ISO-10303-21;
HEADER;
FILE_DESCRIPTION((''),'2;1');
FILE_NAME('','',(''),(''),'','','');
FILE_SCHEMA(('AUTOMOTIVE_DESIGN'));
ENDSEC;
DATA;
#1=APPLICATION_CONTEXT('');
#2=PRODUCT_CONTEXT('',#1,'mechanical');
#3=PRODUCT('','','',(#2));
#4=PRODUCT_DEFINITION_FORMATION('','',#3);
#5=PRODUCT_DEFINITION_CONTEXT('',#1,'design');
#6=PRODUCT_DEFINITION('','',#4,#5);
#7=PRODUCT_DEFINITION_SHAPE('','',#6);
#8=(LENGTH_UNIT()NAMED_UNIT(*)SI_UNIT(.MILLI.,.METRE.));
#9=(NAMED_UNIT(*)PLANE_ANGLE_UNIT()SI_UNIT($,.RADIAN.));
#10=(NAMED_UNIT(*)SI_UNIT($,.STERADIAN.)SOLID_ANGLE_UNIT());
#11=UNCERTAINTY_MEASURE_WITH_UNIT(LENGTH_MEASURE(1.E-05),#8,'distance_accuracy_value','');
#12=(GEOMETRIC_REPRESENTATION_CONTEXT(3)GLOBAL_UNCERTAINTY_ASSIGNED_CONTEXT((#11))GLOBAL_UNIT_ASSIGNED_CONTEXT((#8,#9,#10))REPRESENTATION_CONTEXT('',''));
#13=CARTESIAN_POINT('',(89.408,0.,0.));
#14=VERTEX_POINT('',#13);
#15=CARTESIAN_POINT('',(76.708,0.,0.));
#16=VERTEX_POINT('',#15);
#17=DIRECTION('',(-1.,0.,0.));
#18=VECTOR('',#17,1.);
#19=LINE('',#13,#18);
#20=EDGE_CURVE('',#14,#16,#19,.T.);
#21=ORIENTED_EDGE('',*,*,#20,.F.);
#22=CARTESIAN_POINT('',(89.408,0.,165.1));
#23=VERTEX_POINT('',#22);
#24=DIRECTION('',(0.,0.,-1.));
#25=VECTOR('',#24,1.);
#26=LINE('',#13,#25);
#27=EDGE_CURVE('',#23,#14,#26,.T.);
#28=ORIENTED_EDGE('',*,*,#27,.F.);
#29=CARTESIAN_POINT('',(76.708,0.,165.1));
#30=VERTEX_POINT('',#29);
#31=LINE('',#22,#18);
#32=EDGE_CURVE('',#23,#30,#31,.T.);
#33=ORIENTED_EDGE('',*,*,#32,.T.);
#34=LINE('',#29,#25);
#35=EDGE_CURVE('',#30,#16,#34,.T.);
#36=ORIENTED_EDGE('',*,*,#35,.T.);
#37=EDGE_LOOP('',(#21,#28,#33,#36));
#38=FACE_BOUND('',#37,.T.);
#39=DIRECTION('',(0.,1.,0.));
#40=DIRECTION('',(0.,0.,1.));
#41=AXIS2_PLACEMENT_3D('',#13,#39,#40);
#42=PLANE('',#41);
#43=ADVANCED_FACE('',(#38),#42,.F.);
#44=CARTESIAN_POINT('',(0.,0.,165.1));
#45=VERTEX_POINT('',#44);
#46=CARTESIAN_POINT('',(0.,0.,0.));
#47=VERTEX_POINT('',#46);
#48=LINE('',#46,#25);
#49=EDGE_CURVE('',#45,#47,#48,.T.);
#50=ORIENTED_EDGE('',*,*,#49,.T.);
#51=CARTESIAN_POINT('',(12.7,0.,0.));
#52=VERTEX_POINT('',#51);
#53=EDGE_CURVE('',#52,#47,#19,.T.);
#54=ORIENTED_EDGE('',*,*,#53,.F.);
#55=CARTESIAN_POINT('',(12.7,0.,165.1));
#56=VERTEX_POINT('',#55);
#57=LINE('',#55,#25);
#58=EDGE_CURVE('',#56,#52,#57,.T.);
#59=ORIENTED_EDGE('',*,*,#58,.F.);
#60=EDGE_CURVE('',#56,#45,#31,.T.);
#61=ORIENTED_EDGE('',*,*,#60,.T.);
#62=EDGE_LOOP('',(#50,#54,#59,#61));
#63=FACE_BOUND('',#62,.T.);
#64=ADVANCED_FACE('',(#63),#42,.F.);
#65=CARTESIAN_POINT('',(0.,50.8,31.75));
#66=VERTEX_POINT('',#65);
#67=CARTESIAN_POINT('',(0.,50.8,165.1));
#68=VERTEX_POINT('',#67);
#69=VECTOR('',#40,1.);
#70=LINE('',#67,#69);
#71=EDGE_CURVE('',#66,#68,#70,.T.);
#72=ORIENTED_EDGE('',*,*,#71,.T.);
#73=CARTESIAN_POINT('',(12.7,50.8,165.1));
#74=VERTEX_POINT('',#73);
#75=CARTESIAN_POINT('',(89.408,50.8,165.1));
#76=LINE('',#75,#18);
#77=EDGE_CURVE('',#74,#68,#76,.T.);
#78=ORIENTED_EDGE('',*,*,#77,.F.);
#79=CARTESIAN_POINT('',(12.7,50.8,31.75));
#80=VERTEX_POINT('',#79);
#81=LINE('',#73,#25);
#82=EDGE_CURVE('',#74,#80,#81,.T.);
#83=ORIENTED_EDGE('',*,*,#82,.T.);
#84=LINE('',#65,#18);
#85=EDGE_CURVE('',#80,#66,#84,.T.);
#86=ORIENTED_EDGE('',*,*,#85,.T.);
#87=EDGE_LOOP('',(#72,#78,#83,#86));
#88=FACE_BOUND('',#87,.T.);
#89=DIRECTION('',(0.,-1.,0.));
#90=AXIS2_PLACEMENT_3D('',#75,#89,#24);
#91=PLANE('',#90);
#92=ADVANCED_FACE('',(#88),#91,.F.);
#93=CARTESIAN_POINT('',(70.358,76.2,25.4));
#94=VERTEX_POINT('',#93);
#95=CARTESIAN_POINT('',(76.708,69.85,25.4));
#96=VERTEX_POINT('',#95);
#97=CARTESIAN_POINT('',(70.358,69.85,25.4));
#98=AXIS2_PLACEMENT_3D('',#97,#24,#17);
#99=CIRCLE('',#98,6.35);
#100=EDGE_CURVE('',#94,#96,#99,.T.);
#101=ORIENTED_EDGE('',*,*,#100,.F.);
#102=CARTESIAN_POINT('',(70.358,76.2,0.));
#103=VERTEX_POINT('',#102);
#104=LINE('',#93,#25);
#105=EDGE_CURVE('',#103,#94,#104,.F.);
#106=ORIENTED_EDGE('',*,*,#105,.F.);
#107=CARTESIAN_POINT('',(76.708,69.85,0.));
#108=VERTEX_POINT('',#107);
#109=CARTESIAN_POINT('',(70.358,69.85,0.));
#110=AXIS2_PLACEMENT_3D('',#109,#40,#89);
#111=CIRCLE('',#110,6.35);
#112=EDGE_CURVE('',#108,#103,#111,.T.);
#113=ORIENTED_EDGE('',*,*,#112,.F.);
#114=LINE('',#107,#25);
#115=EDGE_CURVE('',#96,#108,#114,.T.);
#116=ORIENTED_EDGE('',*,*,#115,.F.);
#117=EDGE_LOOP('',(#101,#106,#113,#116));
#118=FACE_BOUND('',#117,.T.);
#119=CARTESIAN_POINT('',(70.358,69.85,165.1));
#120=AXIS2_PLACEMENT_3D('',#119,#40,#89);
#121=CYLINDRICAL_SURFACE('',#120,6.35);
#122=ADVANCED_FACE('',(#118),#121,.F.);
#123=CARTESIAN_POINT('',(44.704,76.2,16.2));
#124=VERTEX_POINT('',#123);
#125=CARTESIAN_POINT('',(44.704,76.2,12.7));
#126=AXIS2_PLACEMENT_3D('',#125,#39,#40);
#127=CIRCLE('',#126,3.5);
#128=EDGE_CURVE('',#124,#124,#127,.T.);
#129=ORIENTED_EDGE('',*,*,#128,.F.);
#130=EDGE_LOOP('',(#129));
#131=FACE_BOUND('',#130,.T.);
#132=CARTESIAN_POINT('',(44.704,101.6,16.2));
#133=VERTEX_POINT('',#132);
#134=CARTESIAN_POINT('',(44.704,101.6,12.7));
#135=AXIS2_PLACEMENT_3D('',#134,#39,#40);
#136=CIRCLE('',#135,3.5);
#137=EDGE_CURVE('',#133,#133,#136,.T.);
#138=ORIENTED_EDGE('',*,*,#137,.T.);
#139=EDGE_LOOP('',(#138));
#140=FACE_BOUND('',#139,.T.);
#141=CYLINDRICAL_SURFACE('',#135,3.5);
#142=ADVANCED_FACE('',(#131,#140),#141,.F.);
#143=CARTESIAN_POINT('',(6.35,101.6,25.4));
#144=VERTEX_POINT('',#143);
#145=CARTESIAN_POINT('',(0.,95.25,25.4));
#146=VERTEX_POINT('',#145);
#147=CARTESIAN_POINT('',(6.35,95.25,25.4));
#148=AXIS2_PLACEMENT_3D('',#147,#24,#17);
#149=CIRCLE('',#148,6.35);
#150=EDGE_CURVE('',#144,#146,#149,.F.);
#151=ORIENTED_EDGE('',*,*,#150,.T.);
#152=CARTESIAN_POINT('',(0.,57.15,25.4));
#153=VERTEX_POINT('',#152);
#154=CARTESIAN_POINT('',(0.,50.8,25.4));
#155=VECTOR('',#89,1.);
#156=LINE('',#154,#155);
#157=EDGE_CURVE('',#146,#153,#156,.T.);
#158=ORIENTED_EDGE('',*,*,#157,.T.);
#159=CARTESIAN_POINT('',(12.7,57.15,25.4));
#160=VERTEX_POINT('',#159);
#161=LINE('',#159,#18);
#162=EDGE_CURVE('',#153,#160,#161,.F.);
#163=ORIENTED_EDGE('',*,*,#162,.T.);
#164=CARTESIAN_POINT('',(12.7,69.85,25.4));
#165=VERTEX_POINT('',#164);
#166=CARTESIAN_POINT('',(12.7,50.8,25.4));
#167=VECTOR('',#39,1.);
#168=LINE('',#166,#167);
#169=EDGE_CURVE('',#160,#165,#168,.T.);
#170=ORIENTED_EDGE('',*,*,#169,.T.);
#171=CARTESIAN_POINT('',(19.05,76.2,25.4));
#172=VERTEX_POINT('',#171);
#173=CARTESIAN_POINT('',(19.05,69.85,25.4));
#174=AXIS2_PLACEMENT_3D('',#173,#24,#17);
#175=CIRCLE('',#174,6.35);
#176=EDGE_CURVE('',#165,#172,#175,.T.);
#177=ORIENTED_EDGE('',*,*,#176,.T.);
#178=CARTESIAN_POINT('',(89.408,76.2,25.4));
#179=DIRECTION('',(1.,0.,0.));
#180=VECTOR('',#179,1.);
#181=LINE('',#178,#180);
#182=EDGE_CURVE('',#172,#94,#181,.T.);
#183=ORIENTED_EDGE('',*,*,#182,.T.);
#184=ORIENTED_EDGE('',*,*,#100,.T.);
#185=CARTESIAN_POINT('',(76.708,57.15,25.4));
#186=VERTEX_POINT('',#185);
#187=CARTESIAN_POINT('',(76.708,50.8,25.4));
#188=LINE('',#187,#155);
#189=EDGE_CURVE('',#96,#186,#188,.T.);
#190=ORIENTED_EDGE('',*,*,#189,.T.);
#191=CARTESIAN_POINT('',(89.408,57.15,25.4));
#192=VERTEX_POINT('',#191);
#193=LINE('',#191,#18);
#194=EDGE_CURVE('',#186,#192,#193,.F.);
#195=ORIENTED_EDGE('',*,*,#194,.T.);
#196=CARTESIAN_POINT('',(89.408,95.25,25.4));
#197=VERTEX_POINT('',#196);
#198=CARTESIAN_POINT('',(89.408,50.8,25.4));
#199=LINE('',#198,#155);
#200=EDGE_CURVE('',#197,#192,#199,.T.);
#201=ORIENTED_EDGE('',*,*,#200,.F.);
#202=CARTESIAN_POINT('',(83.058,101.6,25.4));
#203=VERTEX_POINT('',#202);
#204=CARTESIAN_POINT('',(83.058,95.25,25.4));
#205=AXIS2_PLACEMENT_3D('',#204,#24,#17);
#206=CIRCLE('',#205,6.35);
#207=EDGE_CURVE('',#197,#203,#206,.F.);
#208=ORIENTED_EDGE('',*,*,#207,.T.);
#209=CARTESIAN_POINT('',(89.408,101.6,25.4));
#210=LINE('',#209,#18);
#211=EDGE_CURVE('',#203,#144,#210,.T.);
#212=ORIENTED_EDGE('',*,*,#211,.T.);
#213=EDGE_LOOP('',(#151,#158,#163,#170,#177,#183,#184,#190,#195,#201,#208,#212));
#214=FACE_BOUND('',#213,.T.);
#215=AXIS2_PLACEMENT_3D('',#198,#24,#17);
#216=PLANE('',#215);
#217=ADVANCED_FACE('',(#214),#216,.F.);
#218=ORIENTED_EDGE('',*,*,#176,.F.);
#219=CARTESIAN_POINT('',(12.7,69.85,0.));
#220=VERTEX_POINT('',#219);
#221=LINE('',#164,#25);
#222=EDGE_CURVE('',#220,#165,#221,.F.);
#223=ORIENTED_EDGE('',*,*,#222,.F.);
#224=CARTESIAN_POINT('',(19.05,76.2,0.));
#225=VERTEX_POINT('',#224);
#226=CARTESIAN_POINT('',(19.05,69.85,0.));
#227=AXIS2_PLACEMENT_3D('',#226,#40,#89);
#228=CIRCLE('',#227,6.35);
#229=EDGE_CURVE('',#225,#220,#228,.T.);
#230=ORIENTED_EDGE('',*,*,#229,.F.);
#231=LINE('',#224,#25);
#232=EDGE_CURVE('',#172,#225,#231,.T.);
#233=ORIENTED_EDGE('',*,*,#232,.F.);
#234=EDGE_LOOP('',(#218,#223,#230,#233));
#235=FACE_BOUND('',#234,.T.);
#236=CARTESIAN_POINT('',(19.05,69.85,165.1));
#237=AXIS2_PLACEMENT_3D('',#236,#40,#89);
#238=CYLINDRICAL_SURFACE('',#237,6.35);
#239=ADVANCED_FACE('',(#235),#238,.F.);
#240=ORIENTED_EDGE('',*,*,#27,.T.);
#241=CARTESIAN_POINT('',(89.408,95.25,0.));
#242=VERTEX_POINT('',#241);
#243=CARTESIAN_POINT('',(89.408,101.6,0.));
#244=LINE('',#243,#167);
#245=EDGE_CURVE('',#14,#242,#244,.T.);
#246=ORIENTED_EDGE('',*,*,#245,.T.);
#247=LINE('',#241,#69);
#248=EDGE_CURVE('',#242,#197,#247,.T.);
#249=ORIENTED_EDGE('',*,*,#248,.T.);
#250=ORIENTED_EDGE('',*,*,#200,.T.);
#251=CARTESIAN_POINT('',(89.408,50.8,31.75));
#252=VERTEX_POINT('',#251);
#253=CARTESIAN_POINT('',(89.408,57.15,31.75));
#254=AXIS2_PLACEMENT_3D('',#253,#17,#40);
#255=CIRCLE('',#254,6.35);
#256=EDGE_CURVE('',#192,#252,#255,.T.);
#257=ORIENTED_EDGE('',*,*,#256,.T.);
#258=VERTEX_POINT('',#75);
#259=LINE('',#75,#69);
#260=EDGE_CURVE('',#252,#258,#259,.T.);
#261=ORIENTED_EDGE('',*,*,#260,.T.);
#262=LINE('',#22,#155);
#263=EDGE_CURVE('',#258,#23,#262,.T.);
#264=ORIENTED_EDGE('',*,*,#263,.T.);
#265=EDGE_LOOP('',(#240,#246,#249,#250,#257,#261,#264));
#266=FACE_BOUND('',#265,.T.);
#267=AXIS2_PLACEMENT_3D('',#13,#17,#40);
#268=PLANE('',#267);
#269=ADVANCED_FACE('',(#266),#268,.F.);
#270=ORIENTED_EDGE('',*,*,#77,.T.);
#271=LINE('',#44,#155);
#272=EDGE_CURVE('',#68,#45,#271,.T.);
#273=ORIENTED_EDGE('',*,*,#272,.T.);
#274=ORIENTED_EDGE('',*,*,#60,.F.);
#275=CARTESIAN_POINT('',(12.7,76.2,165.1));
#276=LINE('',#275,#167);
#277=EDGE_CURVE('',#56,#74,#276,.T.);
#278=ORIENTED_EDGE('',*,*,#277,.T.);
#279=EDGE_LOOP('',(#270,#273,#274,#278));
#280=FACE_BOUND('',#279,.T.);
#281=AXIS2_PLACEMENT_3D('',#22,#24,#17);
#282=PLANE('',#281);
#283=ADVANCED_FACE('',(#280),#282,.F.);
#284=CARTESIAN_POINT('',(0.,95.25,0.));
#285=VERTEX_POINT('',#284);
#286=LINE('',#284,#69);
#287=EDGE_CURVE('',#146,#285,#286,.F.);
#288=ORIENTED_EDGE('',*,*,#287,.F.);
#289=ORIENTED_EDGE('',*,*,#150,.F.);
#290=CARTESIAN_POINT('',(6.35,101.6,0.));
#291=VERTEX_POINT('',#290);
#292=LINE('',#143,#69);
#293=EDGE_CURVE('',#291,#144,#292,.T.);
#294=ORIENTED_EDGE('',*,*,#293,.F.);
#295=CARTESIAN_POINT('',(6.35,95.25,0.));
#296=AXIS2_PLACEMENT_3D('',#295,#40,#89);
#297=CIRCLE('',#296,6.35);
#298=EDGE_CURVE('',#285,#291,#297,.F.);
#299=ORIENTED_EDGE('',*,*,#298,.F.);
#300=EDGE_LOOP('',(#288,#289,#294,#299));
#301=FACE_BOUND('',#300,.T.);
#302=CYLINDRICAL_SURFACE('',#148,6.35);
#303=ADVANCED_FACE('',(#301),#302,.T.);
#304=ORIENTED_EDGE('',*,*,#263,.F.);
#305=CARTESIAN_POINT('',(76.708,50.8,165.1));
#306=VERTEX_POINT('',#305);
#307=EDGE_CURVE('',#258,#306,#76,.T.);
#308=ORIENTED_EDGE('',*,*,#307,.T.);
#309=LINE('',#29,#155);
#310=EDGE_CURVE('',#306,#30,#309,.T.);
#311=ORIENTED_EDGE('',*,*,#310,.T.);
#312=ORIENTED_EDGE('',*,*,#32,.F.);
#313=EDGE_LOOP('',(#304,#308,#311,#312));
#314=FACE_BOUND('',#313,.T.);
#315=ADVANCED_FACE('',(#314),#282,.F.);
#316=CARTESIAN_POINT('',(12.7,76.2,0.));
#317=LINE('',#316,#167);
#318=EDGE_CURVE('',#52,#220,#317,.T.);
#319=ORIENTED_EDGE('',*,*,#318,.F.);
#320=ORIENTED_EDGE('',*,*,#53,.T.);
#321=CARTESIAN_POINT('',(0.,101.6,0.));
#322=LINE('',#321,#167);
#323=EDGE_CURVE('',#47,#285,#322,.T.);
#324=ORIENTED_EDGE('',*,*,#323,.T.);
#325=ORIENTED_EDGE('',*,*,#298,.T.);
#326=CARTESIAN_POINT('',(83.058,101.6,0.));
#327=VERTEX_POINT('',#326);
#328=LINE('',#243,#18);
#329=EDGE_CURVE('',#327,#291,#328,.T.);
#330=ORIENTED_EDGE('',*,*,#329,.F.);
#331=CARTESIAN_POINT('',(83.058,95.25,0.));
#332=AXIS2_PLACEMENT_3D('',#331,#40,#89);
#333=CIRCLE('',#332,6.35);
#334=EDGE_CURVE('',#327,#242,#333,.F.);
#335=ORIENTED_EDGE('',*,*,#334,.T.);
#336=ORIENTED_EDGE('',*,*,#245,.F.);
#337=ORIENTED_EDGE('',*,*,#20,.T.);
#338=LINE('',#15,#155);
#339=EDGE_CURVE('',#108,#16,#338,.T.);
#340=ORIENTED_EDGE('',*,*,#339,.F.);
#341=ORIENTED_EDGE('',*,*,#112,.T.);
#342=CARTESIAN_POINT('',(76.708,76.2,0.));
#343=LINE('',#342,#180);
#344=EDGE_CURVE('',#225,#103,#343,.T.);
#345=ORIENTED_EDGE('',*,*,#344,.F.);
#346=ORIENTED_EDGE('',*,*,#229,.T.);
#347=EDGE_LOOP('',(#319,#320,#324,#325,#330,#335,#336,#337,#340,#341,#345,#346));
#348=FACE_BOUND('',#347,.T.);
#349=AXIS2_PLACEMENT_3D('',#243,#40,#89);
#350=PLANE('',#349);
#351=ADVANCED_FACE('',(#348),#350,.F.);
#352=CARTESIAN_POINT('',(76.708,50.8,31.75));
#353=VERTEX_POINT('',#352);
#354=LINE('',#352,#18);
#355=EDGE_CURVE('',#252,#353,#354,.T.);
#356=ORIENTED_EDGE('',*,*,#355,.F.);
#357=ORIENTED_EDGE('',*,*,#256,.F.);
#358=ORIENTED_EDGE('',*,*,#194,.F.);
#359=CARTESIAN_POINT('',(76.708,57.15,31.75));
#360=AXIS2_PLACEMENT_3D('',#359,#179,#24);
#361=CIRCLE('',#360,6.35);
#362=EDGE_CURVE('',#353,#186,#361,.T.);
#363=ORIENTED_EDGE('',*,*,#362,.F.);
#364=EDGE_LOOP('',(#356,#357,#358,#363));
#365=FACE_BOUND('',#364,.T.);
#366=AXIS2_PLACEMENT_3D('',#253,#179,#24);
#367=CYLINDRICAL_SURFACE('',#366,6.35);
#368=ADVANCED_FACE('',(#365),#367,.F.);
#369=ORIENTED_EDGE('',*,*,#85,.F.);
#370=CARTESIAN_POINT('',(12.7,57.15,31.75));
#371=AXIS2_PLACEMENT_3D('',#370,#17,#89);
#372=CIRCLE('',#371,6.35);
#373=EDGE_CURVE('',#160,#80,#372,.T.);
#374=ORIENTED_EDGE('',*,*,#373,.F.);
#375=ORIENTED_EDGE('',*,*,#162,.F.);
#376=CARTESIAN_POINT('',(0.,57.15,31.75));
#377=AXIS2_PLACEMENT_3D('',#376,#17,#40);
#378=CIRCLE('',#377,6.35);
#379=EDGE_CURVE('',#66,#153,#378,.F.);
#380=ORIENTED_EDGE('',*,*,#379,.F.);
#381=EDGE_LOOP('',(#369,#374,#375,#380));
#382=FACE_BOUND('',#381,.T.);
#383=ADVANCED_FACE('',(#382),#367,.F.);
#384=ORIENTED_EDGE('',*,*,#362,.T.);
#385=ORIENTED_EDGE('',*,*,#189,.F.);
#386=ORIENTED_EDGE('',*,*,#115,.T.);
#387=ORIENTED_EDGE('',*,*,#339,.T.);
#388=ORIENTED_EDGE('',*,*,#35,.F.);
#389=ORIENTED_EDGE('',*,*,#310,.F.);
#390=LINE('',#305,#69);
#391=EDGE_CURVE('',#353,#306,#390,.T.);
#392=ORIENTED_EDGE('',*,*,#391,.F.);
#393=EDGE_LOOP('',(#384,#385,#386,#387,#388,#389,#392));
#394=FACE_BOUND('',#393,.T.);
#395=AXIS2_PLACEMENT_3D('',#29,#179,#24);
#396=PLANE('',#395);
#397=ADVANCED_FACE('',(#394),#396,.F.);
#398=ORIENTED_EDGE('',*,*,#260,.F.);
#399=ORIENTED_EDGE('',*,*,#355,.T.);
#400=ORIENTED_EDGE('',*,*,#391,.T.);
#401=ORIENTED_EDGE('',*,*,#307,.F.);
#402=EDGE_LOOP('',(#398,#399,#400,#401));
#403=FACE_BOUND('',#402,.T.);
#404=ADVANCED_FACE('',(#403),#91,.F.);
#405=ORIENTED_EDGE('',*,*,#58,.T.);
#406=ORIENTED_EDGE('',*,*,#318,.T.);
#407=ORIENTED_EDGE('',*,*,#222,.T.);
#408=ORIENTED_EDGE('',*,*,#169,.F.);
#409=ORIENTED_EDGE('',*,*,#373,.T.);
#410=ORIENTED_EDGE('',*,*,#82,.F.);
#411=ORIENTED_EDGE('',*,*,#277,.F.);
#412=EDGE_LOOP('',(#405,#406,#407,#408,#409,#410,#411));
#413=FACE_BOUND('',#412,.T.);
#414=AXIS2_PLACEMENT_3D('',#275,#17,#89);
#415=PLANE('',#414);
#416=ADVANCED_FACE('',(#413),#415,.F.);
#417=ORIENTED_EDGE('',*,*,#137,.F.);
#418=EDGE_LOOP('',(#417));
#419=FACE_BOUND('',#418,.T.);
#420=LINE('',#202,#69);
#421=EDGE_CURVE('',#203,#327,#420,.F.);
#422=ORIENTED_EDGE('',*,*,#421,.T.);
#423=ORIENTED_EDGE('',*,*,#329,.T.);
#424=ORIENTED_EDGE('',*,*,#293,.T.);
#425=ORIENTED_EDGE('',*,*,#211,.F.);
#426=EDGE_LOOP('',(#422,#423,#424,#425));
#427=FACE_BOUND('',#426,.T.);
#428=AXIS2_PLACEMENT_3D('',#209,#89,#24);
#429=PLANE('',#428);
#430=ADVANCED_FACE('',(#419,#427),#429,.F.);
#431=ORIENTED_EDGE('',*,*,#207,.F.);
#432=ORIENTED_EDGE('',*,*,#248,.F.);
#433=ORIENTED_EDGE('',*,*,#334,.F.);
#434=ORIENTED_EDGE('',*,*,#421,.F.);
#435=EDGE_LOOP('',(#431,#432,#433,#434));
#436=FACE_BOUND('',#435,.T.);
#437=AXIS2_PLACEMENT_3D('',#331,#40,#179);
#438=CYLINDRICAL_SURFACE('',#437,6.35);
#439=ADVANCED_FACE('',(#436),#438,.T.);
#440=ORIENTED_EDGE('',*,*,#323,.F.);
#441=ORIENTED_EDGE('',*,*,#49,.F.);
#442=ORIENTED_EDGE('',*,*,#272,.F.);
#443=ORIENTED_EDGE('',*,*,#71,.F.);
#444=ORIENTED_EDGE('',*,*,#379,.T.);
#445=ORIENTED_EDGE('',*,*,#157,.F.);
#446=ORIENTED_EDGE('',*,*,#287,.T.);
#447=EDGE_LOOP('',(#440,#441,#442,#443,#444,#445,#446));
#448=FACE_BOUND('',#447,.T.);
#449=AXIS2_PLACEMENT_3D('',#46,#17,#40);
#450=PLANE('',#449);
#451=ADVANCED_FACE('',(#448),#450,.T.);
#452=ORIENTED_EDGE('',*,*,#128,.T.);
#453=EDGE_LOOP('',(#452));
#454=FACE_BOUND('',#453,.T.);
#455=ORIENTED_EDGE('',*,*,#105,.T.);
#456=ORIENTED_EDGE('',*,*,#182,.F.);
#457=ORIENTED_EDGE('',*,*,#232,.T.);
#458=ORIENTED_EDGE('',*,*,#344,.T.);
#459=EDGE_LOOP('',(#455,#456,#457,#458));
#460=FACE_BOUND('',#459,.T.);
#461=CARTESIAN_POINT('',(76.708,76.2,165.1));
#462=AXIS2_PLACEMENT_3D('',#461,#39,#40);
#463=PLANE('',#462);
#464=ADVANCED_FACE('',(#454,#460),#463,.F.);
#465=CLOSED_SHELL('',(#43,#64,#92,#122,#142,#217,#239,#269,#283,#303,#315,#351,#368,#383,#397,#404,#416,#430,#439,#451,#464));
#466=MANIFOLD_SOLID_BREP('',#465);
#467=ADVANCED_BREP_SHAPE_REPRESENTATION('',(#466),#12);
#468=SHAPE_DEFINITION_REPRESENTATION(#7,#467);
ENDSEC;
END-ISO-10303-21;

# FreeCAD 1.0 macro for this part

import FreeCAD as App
import Part
import Sketcher

V = App.Vector
Q = App.Units.Quantity


def edges_at(feature, points):
    """Names of the edges that pass closest to the given points."""
    edges = feature.Shape.Edges
    near = lambda p: min(range(len(edges)), key=lambda i: edges[i].distToShape(Part.Vertex(*p))[0])
    return sorted({f"Edge{near(p) + 1}" for p in points})


def add_polygon(sketch, points):
    """Adds a closed chain of lines whose ends are joined by coincident constraints."""
    first, n = sketch.GeometryCount, len(points)
    for a, b in zip(points, points[1:] + points[:1]):
        sketch.addGeometry(Part.LineSegment(App.Vector(*a, 0), App.Vector(*b, 0)), False)
    for i in range(n):
        sketch.addConstraint(Sketcher.Constraint("Coincident", first + i, 2, first + (i + 1) % n, 1))

doc = App.newDocument("Part")
body = doc.addObject("PartDesign::Body", "Body")

sketch1 = body.newObject("Sketcher::SketchObject", "Sketch")
sketch1.AttachmentSupport = (doc.getObject("YZ_Plane"), [""])
sketch1.MapMode = "FlatFace"
add_polygon(sketch1, [(0, 165), (0, 0), (102, 0), (102, 25), (51, 25), (51, 165)])
sketch1.addConstraint(Sketcher.Constraint("Vertical", 0))
sketch1.addConstraint(Sketcher.Constraint("Horizontal", 1))
sketch1.addConstraint(Sketcher.Constraint("Vertical", 2))
sketch1.addConstraint(Sketcher.Constraint("Horizontal", 3))
sketch1.addConstraint(Sketcher.Constraint("Vertical", 4))
sketch1.addConstraint(Sketcher.Constraint("Horizontal", 5))
sketch1.addConstraint(Sketcher.Constraint("Coincident", 0, 2, -1, 1))
sketch1.addConstraint(Sketcher.Constraint("Equal", 3, 5))
sketch1.addConstraint(Sketcher.Constraint("DistanceX", 1, 1, 1, 2, Q("4 in")))
sketch1.addConstraint(Sketcher.Constraint("DistanceY", 2, 1, 2, 2, Q("1 in")))
sketch1.addConstraint(Sketcher.Constraint("DistanceY", 0, 2, 0, 1, Q("6.5 in")))
pad1 = body.newObject("PartDesign::Pad", "Pad")
pad1.Profile = sketch1
pad1.Length = Q("3.52 in")

sketch2 = body.newObject("Sketcher::SketchObject", "Sketch001")
sketch2.AttachmentSupport = (doc.getObject("XY_Plane"), [""])
sketch2.MapMode = "FlatFace"
add_polygon(sketch2, [(77, 76), (77, 0), (13, 0), (13, 76)])
sketch2.addConstraint(Sketcher.Constraint("Vertical", 0))
sketch2.addConstraint(Sketcher.Constraint("Horizontal", 1))
sketch2.addConstraint(Sketcher.Constraint("Vertical", 2))
sketch2.addConstraint(Sketcher.Constraint("Horizontal", 3))
sketch2.addConstraint(Sketcher.Constraint("PointOnObject", 0, 2, -1))
sketch2.addConstraint(Sketcher.Constraint("DistanceY", 0, 2, 0, 1, Q("3 in")))
sketch2.addConstraint(Sketcher.Constraint("DistanceX", 1, 2, 1, 1, Q("2.52 in")))
sketch2.addConstraint(Sketcher.Constraint("DistanceX", -1, 1, 1, 2, Q("0.5 in")))
pocket1 = body.newObject("PartDesign::Pocket", "Pocket")
pocket1.Profile = sketch2
pocket1.Type = "ThroughAll"
pocket1.Reversed = True

sketch3 = body.newObject("Sketcher::SketchObject", "Sketch002")
sketch3.AttachmentSupport = (doc.getObject("XZ_Plane"), [""])
sketch3.MapMode = "FlatFace"
sketch3.AttachmentOffset = App.Placement(V(0, 0, -4 * 25.4), App.Rotation())
sketch3.addGeometry(Part.Circle(V(44.7, 12.7, 0), V(0, 0, 1), 3.5), False)
sketch3.addConstraint(Sketcher.Constraint("DistanceY", -1, 1, 0, 3, Q("0.5 in")))
sketch3.addConstraint(Sketcher.Constraint("Diameter", 0, 7.0))
sketch3.addConstraint(Sketcher.Constraint("DistanceX", -1, 1, 0, 3, Q("1.76 in")))
doc.recompute()
hole = body.newObject("PartDesign::Hole", "Hole")
hole.Profile = sketch3
hole.ThreadType = "None"
hole.Diameter = 7
hole.DepthType = "ThroughAll"
hole.Reversed = True
doc.recompute()

fillet = body.newObject("PartDesign::Fillet", "Fillet")
fillet.Base = (hole, edges_at(hole, [
    (83.058, 50.8, 25.4),
    (6.35, 50.8, 25.4),
    (76.708, 76.2, 12.7),
    (12.7, 76.2, 12.7),
    (0, 101.6, 12.7),
    (89.408, 101.6, 12.7),
]))
fillet.Radius = Q("0.25 in")

doc.recompute()
